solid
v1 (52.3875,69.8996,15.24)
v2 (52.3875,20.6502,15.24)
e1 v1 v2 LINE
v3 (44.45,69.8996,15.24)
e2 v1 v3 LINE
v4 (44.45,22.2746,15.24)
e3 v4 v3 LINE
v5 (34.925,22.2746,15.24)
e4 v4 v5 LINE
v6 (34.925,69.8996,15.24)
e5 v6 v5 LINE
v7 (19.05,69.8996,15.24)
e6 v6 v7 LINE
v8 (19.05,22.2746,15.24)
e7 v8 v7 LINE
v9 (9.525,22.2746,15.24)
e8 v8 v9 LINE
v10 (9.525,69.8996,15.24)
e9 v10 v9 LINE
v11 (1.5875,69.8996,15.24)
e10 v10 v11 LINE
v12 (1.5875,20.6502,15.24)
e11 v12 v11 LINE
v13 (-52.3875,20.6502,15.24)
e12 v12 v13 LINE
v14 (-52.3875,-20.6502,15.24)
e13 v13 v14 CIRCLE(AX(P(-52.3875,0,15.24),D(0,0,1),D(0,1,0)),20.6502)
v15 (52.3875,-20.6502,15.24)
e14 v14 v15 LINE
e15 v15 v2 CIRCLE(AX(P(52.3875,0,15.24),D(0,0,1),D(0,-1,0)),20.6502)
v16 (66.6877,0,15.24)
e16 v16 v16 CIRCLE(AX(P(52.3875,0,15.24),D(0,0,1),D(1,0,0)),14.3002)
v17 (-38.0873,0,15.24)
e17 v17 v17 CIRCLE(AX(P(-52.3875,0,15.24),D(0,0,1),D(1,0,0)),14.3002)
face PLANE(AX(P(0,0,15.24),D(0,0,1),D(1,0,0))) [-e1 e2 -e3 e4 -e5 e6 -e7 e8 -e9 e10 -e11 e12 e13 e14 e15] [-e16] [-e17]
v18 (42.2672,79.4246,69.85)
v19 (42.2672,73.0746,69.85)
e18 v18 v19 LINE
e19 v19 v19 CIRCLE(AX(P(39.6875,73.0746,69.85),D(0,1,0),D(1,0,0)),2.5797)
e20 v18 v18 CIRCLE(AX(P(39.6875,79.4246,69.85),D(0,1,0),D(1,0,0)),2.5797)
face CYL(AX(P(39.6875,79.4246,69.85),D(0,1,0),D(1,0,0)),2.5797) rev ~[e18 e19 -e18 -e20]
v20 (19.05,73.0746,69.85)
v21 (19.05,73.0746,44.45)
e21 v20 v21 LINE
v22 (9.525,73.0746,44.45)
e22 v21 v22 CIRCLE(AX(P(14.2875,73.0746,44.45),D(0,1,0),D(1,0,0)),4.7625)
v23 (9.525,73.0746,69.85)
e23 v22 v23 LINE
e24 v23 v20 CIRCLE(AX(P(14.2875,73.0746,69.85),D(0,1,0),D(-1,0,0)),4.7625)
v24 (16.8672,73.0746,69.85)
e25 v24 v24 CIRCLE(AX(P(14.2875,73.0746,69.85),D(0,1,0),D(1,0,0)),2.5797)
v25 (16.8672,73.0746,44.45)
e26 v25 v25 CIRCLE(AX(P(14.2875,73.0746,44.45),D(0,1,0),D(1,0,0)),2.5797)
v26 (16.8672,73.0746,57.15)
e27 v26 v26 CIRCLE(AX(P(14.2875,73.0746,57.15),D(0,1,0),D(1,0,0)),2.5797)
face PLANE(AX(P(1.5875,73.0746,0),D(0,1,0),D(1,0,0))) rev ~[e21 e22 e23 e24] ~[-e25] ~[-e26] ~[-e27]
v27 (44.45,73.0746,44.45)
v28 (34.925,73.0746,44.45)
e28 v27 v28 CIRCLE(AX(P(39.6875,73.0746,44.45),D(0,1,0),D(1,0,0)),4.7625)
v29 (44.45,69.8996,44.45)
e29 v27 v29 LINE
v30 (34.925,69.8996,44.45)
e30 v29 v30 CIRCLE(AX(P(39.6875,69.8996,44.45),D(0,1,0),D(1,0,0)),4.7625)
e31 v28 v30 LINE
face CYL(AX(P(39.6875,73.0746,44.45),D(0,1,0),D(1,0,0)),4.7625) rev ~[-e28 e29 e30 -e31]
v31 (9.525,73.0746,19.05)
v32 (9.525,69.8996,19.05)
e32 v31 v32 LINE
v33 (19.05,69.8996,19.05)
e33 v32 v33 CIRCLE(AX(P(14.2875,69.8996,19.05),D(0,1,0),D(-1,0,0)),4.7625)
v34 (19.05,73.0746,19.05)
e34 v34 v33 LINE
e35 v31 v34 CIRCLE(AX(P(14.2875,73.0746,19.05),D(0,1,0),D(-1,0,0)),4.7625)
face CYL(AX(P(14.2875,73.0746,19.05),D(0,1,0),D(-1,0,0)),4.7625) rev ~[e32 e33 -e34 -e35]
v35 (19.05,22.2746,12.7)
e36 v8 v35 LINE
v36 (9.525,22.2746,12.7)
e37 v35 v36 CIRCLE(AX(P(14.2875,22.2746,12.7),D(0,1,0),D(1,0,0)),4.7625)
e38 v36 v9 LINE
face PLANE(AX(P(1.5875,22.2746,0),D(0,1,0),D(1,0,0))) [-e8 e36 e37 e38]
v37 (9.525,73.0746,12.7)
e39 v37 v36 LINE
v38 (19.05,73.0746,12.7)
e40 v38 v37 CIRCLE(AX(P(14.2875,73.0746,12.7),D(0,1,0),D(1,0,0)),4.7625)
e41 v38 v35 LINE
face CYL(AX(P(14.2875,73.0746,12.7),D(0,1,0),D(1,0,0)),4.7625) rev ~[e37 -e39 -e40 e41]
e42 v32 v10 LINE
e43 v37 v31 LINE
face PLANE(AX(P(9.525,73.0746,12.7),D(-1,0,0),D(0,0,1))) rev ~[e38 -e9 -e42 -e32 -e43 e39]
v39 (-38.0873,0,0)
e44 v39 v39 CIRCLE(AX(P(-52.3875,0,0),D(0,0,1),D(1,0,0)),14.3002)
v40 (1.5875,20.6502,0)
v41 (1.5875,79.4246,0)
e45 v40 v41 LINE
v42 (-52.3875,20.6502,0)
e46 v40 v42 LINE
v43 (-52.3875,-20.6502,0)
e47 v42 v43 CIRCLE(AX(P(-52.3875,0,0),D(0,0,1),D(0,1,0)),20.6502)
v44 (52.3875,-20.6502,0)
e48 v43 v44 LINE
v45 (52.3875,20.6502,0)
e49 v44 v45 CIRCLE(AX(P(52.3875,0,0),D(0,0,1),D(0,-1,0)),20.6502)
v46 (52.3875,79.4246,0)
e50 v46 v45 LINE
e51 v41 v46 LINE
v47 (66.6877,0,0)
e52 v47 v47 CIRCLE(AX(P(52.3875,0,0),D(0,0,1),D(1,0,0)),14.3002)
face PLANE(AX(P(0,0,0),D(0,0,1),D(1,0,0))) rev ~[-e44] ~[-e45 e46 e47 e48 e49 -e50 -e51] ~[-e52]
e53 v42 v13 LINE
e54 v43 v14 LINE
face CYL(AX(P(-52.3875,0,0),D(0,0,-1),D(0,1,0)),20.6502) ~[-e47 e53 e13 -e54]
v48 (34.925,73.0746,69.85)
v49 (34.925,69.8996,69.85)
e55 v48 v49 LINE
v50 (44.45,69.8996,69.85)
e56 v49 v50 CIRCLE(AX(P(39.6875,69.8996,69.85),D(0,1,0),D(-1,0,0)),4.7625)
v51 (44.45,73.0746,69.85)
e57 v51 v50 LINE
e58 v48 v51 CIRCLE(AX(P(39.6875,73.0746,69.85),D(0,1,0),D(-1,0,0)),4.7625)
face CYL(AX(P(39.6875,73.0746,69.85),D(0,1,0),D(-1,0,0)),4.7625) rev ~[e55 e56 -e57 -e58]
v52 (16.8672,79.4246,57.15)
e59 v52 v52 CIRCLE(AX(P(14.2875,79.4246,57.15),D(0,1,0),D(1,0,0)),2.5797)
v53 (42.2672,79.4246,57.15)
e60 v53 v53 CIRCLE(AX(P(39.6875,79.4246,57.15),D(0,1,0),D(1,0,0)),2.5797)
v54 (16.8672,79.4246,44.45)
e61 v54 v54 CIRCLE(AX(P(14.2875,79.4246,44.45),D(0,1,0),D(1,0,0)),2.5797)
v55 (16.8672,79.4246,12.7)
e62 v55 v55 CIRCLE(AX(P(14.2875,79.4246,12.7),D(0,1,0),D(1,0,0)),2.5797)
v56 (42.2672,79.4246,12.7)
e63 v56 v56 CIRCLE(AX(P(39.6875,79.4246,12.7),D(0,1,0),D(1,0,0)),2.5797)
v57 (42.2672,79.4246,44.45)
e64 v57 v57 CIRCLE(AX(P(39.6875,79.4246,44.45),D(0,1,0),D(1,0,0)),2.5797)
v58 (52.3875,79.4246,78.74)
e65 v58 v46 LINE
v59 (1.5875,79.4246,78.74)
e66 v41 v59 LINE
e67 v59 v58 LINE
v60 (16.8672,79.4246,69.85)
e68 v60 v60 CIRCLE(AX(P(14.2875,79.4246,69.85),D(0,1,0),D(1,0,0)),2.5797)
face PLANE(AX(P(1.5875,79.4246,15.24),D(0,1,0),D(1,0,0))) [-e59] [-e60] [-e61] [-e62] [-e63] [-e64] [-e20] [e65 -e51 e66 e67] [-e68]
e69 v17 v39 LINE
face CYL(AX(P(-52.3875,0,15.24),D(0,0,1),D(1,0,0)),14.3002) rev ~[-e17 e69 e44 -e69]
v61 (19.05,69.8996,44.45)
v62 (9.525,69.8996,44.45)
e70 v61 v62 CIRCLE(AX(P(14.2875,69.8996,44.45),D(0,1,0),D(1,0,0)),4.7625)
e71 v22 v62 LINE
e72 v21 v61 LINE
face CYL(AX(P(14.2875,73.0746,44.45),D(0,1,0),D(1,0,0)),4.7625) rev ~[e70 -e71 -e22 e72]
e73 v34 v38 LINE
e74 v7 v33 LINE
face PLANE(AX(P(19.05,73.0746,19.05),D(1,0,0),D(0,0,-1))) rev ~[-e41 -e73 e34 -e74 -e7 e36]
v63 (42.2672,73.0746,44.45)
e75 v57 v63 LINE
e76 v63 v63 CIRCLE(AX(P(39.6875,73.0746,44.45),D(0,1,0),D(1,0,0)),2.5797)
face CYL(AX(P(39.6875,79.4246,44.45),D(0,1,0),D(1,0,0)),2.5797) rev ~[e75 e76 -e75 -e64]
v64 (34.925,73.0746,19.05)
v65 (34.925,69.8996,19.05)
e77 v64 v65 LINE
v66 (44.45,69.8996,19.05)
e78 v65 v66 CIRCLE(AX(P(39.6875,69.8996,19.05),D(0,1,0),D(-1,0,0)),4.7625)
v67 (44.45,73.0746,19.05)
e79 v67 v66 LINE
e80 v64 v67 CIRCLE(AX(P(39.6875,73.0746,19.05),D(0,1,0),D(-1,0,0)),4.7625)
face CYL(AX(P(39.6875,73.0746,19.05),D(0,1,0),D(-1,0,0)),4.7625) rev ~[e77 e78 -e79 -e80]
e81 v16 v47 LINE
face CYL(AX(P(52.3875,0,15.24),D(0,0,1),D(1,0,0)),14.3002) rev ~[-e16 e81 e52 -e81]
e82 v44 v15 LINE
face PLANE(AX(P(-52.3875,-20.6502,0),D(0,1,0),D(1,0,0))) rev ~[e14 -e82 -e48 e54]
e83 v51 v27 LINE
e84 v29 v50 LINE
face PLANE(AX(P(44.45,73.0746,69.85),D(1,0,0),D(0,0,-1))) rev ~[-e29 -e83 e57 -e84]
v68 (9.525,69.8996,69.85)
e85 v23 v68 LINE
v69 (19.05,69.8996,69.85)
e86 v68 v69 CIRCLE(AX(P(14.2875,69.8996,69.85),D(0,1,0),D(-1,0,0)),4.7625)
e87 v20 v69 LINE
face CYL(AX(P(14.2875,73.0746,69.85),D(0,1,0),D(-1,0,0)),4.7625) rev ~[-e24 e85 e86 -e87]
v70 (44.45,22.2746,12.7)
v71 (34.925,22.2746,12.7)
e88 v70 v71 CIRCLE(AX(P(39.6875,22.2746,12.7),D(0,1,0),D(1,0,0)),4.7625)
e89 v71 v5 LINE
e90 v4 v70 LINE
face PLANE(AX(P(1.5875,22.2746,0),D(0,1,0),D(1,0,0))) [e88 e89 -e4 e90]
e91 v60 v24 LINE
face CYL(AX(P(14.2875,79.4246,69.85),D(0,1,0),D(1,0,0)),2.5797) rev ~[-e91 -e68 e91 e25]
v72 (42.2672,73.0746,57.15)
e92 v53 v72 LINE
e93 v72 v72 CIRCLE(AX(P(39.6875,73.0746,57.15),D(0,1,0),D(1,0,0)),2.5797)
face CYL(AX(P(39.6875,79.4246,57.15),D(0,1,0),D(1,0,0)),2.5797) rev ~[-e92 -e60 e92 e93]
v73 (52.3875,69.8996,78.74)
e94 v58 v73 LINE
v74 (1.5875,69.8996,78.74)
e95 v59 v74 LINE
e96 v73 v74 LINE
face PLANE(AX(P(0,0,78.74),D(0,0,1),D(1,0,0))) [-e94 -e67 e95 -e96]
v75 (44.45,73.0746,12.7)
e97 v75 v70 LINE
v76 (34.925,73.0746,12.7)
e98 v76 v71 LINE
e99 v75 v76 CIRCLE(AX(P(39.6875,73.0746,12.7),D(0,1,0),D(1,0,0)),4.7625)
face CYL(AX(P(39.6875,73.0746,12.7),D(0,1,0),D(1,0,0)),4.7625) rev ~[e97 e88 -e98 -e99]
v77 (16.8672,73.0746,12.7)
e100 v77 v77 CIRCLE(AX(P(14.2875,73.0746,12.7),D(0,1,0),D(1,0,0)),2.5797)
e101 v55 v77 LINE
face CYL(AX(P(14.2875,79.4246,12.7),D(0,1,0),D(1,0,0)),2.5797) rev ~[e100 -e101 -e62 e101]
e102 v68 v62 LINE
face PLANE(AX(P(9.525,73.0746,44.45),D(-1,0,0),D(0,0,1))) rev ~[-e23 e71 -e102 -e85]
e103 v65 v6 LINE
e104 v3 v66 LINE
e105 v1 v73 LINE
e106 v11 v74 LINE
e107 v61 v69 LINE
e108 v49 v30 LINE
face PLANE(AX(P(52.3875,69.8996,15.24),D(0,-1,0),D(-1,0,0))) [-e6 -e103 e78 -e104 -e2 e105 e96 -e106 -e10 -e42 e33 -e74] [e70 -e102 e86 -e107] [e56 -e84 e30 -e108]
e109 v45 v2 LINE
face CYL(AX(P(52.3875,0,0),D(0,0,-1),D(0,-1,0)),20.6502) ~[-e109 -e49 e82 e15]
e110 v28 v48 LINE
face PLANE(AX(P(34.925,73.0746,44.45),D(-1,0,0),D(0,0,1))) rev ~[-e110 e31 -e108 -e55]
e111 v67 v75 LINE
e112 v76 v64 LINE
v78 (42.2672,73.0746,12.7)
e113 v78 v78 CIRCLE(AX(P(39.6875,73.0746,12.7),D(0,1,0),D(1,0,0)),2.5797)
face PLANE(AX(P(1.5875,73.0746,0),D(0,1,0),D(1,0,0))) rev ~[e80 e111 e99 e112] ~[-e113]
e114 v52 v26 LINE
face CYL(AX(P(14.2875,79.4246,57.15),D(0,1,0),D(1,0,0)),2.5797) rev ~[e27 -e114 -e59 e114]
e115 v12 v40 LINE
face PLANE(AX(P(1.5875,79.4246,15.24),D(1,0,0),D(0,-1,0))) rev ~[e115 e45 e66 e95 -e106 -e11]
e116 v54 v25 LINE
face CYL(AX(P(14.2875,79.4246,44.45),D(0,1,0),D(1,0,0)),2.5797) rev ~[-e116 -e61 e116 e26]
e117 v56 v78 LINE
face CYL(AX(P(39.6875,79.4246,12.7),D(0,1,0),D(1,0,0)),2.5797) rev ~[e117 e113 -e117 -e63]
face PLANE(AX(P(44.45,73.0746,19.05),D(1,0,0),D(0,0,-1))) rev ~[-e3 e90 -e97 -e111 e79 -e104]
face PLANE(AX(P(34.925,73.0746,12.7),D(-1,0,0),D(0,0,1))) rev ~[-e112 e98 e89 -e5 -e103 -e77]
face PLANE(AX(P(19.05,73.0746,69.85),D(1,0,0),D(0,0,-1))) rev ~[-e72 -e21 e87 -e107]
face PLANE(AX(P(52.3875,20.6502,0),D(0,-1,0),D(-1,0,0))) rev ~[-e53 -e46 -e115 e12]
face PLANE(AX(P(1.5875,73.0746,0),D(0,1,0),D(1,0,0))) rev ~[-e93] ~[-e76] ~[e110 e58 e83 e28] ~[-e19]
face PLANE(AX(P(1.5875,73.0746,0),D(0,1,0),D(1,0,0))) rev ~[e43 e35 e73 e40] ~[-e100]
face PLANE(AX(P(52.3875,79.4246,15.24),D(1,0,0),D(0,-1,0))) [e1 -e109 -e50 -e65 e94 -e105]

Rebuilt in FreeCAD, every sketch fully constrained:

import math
import FreeCAD as App
import Part
import Sketcher
from FreeCAD import Vector
Q = App.Units.Quantity

doc = App.newDocument("Part")
body = doc.addObject("PartDesign::Body", "Body")

sketch1 = doc.addObject("Sketcher::SketchObject", "Sketch")
body.addObject(sketch1)
sketch1.AttachmentSupport = (doc.XY_Plane, [""])
sketch1.MapMode = "FlatFace"
sketch1.addGeometry([
    Part.ArcOfCircle(Part.Circle(Vector(-52.3875, 0, 0), Vector(0, 0, 1), 20.6502), math.radians(90), math.radians(270)),
    Part.LineSegment(Vector(-52.3875, -20.6502, 0), Vector(52.3875, -20.6502, 0)),
    Part.ArcOfCircle(Part.Circle(Vector(52.3875, 0, 0), Vector(0, 0, 1), 20.6502), math.radians(-90), math.radians(90)),
    Part.LineSegment(Vector(52.3875, 20.6502, 0), Vector(-52.3875, 20.6502, 0)),
], False)
sketch1.addConstraint([
    Sketcher.Constraint("Tangent", 0, 2, 1, 1),
    Sketcher.Constraint("Tangent", 1, 2, 2, 1),
    Sketcher.Constraint("Tangent", 2, 2, 3, 1),
    Sketcher.Constraint("Tangent", 3, 2, 0, 1),
    Sketcher.Constraint("Horizontal", 1),
    Sketcher.Constraint("Horizontal", 3),
    Sketcher.Constraint("Symmetric", 0, 3, 2, 3, -1, 1),
    Sketcher.Constraint("Radius", 0, Q("0.813 in")),
    Sketcher.Constraint("DistanceX", 1, 1, 1, 2, Q("4.125 in")),
])
pad1 = doc.addObject("PartDesign::Pad", "Pad")
body.addObject(pad1)
pad1.Profile = sketch1
pad1.Length = Q("0.6 in")

sketch2 = doc.addObject("Sketcher::SketchObject", "Sketch001")
body.addObject(sketch2)
sketch2.AttachmentSupport = (doc.XY_Plane, [""])
sketch2.MapMode = "FlatFace"
sketch2.AttachmentOffset = App.Placement(Vector(0, 0, 0.6 * 25.4), App.Rotation())
sketch2.addGeometry([
    Part.Circle(Vector(-52.3875, 0, 0), Vector(0, 0, 1), 14.3002),
    Part.Circle(Vector(52.3875, 0, 0), Vector(0, 0, 1), 14.3002),
], False)
sketch2.addConstraint([
    Sketcher.Constraint("Equal", 0, 1),
    Sketcher.Constraint("Symmetric", 0, 3, 1, 3, -1, 1),
    Sketcher.Constraint("PointOnObject", 0, 3, -1),
    Sketcher.Constraint("Diameter", 0, Q("1.126 in")),
    Sketcher.Constraint("DistanceX", 0, 3, -1, 1, Q("2.0625 in")),
])
pocket1 = doc.addObject("PartDesign::Pocket", "Pocket")
body.addObject(pocket1)
pocket1.Profile = sketch2
pocket1.Type = "ThroughAll"

sketch3 = doc.addObject("Sketcher::SketchObject", "Sketch002")
body.addObject(sketch3)
sketch3.AttachmentSupport = (doc.XY_Plane, [""])
sketch3.MapMode = "FlatFace"
sketch3.AttachmentOffset = App.Placement(Vector(0, 0, 0.6 * 25.4), App.Rotation())
sketch3.addGeometry([
    Part.LineSegment(Vector(52.3875, 79.4246, 0), Vector(1.5875, 79.4246, 0)),
    Part.LineSegment(Vector(1.5875, 79.4246, 0), Vector(1.5875, 20.6502, 0)),
    Part.LineSegment(Vector(1.5875, 20.6502, 0), Vector(52.3875, 20.6502, 0)),
    Part.LineSegment(Vector(52.3875, 20.6502, 0), Vector(52.3875, 79.4246, 0)),
], False)
sketch3.addConstraint([
    Sketcher.Constraint("Coincident", 0, 2, 1, 1),
    Sketcher.Constraint("Coincident", 1, 2, 2, 1),
    Sketcher.Constraint("Coincident", 2, 2, 3, 1),
    Sketcher.Constraint("Coincident", 3, 2, 0, 1),
    Sketcher.Constraint("Horizontal", 0),
    Sketcher.Constraint("Vertical", 1),
    Sketcher.Constraint("Horizontal", 2),
    Sketcher.Constraint("Vertical", 3),
    Sketcher.Constraint("DistanceX", 0, 2, 0, 1, Q("2 in")),
    Sketcher.Constraint("DistanceY", -1, 1, 0, 2, Q("79.4246 mm")),
    Sketcher.Constraint("DistanceX", -1, 1, 0, 2, Q("0.0625 in")),
    Sketcher.Constraint("DistanceY", -1, 1, 1, 2, Q("0.813 in")),
])
pad2 = doc.addObject("PartDesign::Pad", "Pad001")
body.addObject(pad2)
pad2.Profile = sketch3
pad2.Length = Q("0.6 in")
pad2.Reversed = True

sketch4 = doc.addObject("Sketcher::SketchObject", "Sketch003")
body.addObject(sketch4)
sketch4.AttachmentSupport = (doc.XY_Plane, [""])
sketch4.MapMode = "FlatFace"
sketch4.AttachmentOffset = App.Placement(Vector(0, 0, 0.6 * 25.4), App.Rotation())
sketch4.addGeometry([
    Part.LineSegment(Vector(52.3875, 79.4246, 0), Vector(1.5875, 79.4246, 0)),
    Part.LineSegment(Vector(1.5875, 79.4246, 0), Vector(1.5875, 69.8996, 0)),
    Part.LineSegment(Vector(1.5875, 69.8996, 0), Vector(52.3875, 69.8996, 0)),
    Part.LineSegment(Vector(52.3875, 69.8996, 0), Vector(52.3875, 79.4246, 0)),
], False)
sketch4.addConstraint([
    Sketcher.Constraint("Coincident", 0, 2, 1, 1),
    Sketcher.Constraint("Coincident", 1, 2, 2, 1),
    Sketcher.Constraint("Coincident", 2, 2, 3, 1),
    Sketcher.Constraint("Coincident", 3, 2, 0, 1),
    Sketcher.Constraint("Horizontal", 0),
    Sketcher.Constraint("Vertical", 1),
    Sketcher.Constraint("Horizontal", 2),
    Sketcher.Constraint("Vertical", 3),
    Sketcher.Constraint("DistanceX", 0, 2, 0, 1, Q("2 in")),
    Sketcher.Constraint("DistanceY", 1, 2, 1, 1, Q("0.375 in")),
    Sketcher.Constraint("DistanceX", -1, 1, 0, 2, Q("0.0625 in")),
    Sketcher.Constraint("DistanceY", -1, 1, 0, 2, Q("79.4246 mm")),
])
pad3 = doc.addObject("PartDesign::Pad", "Pad002")
body.addObject(pad3)
pad3.Profile = sketch4
pad3.Length = Q("2.5 in")

sketch5 = doc.addObject("Sketcher::SketchObject", "Sketch004")
body.addObject(sketch5)
sketch5.AttachmentSupport = (doc.XZ_Plane, [""])
sketch5.MapMode = "FlatFace"
sketch5.AttachmentOffset = App.Placement(Vector(0, 0, -79.4246), App.Rotation())
sketch5.addGeometry([
    Part.Circle(Vector(39.6875, 12.7, 0), Vector(0, 0, 1), 2.5797),
    Part.Circle(Vector(14.2875, 12.7, 0), Vector(0, 0, 1), 2.5797),
    Part.Circle(Vector(39.6875, 44.45, 0), Vector(0, 0, 1), 2.5797),
    Part.Circle(Vector(14.2875, 44.45, 0), Vector(0, 0, 1), 2.5797),
    Part.Circle(Vector(39.6875, 57.15, 0), Vector(0, 0, 1), 2.5797),
    Part.Circle(Vector(14.2875, 57.15, 0), Vector(0, 0, 1), 2.5797),
    Part.Circle(Vector(39.6875, 69.85, 0), Vector(0, 0, 1), 2.5797),
    Part.Circle(Vector(14.2875, 69.85, 0), Vector(0, 0, 1), 2.5797),
], False)
sketch5.addConstraint([
    Sketcher.Constraint("Equal", 0, 1),
    Sketcher.Constraint("Equal", 1, 2),
    Sketcher.Constraint("Equal", 2, 3),
    Sketcher.Constraint("Equal", 3, 4),
    Sketcher.Constraint("Equal", 4, 5),
    Sketcher.Constraint("Equal", 5, 6),
    Sketcher.Constraint("Equal", 6, 7),
    Sketcher.Constraint("Horizontal", 0, 3, 1, 3),
    Sketcher.Constraint("Horizontal", 2, 3, 3, 3),
    Sketcher.Constraint("Horizontal", 4, 3, 5, 3),
    Sketcher.Constraint("Horizontal", 6, 3, 7, 3),
    Sketcher.Constraint("Vertical", 0, 3, 2, 3),
    Sketcher.Constraint("Vertical", 1, 3, 3, 3),
    Sketcher.Constraint("Vertical", 2, 3, 4, 3),
    Sketcher.Constraint("Vertical", 3, 3, 5, 3),
    Sketcher.Constraint("Vertical", 4, 3, 6, 3),
    Sketcher.Constraint("Vertical", 5, 3, 7, 3),
    Sketcher.Constraint("Diameter", 0, Q("0.203126 in")),
    Sketcher.Constraint("DistanceX", 1, 3, 0, 3, Q("1 in")),
    Sketcher.Constraint("DistanceY", 2, 3, 6, 3, Q("1 in")),
    Sketcher.Constraint("DistanceY", -1, 1, 0, 3, Q("0.5 in")),
    Sketcher.Constraint("DistanceY", 2, 3, 4, 3, Q("0.5 in")),
    Sketcher.Constraint("DistanceY", 0, 3, 2, 3, Q("1.25 in")),
    Sketcher.Constraint("DistanceX", -1, 1, 0, 3, Q("1.5625 in")),
])
pocket2 = doc.addObject("PartDesign::Pocket", "Pocket001")
body.addObject(pocket2)
pocket2.Profile = sketch5
pocket2.Length = Q("2 in")
pocket2.Reversed = True

sketch6 = doc.addObject("Sketcher::SketchObject", "Sketch005")
body.addObject(sketch6)
sketch6.AttachmentSupport = (doc.XZ_Plane, [""])
sketch6.MapMode = "FlatFace"
sketch6.AttachmentOffset = App.Placement(Vector(0, 0, -73.0746), App.Rotation())
sketch6.addGeometry([
    Part.ArcOfCircle(Part.Circle(Vector(39.6875, 12.7, 0), Vector(0, 0, 1), 4.7625), math.radians(180), math.radians(360)),
    Part.LineSegment(Vector(34.925, 12.7, 0), Vector(34.925, 19.05, 0)),
    Part.ArcOfCircle(Part.Circle(Vector(39.6875, 19.05, 0), Vector(0, 0, 1), 4.7625), math.radians(0), math.radians(180)),
    Part.LineSegment(Vector(44.45, 19.05, 0), Vector(44.45, 12.7, 0)),
    Part.ArcOfCircle(Part.Circle(Vector(14.2875, 12.7, 0), Vector(0, 0, 1), 4.7625), math.radians(180), math.radians(360)),
    Part.LineSegment(Vector(9.525, 12.7, 0), Vector(9.525, 19.05, 0)),
    Part.ArcOfCircle(Part.Circle(Vector(14.2875, 19.05, 0), Vector(0, 0, 1), 4.7625), math.radians(0), math.radians(180)),
    Part.LineSegment(Vector(19.05, 19.05, 0), Vector(19.05, 12.7, 0)),
    Part.ArcOfCircle(Part.Circle(Vector(39.6875, 44.45, 0), Vector(0, 0, 1), 4.7625), math.radians(180), math.radians(360)),
    Part.LineSegment(Vector(34.925, 44.45, 0), Vector(34.925, 69.85, 0)),
    Part.ArcOfCircle(Part.Circle(Vector(39.6875, 69.85, 0), Vector(0, 0, 1), 4.7625), math.radians(0), math.radians(180)),
    Part.LineSegment(Vector(44.45, 69.85, 0), Vector(44.45, 44.45, 0)),
    Part.ArcOfCircle(Part.Circle(Vector(14.2875, 44.45, 0), Vector(0, 0, 1), 4.7625), math.radians(180), math.radians(360)),
    Part.LineSegment(Vector(9.525, 44.45, 0), Vector(9.525, 69.85, 0)),
    Part.ArcOfCircle(Part.Circle(Vector(14.2875, 69.85, 0), Vector(0, 0, 1), 4.7625), math.radians(0), math.radians(180)),
    Part.LineSegment(Vector(19.05, 69.85, 0), Vector(19.05, 44.45, 0)),
], False)
sketch6.addConstraint([
    Sketcher.Constraint("Tangent", 0, 1, 1, 1),
    Sketcher.Constraint("Tangent", 1, 2, 2, 2),
    Sketcher.Constraint("Tangent", 2, 1, 3, 1),
    Sketcher.Constraint("Tangent", 3, 2, 0, 2),
    Sketcher.Constraint("Tangent", 4, 1, 5, 1),
    Sketcher.Constraint("Tangent", 5, 2, 6, 2),
    Sketcher.Constraint("Tangent", 6, 1, 7, 1),
    Sketcher.Constraint("Tangent", 7, 2, 4, 2),
    Sketcher.Constraint("Tangent", 8, 1, 9, 1),
    Sketcher.Constraint("Tangent", 9, 2, 10, 2),
    Sketcher.Constraint("Tangent", 10, 1, 11, 1),
    Sketcher.Constraint("Tangent", 11, 2, 8, 2),
    Sketcher.Constraint("Tangent", 12, 1, 13, 1),
    Sketcher.Constraint("Tangent", 13, 2, 14, 2),
    Sketcher.Constraint("Tangent", 14, 1, 15, 1),
    Sketcher.Constraint("Tangent", 15, 2, 12, 2),
    Sketcher.Constraint("Vertical", 1),
    Sketcher.Constraint("Vertical", 3),
    Sketcher.Constraint("Vertical", 5),
    Sketcher.Constraint("Vertical", 7),
    Sketcher.Constraint("Vertical", 9),
    Sketcher.Constraint("Vertical", 11),
    Sketcher.Constraint("Vertical", 13),
    Sketcher.Constraint("Vertical", 15),
    Sketcher.Constraint("Equal", 2, 4),
    Sketcher.Constraint("Equal", 6, 8),
    Sketcher.Constraint("Equal", 10, 12),
    Sketcher.Constraint("Horizontal", 0, 3, 4, 3),
    Sketcher.Constraint("Horizontal", 2, 3, 6, 3),
    Sketcher.Constraint("Horizontal", 8, 3, 12, 3),
    Sketcher.Constraint("Horizontal", 10, 3, 14, 3),
    Sketcher.Constraint("Vertical", 2, 3, 8, 3),
    Sketcher.Constraint("Vertical", 6, 3, 12, 3),
    Sketcher.Constraint("Radius", 0, Q("0.1875 in")),
    Sketcher.Constraint("DistanceY", 1, 1, 1, 2, Q("0.25 in")),
    Sketcher.Constraint("DistanceY", 9, 1, 9, 2, Q("1 in")),
    Sketcher.Constraint("DistanceX", 4, 3, 0, 3, Q("1 in")),
    Sketcher.Constraint("DistanceY", 2, 3, 8, 3, Q("1 in")),
    Sketcher.Constraint("DistanceY", -1, 1, 0, 3, Q("0.5 in")),
    Sketcher.Constraint("DistanceX", -1, 1, 2, 1, Q("1.75 in")),
])
pocket3 = doc.addObject("PartDesign::Pocket", "Pocket002")
body.addObject(pocket3)
pocket3.Profile = sketch6
pocket3.Length = Q("2 in")
pocket3.Reversed = True

doc.recompute()
